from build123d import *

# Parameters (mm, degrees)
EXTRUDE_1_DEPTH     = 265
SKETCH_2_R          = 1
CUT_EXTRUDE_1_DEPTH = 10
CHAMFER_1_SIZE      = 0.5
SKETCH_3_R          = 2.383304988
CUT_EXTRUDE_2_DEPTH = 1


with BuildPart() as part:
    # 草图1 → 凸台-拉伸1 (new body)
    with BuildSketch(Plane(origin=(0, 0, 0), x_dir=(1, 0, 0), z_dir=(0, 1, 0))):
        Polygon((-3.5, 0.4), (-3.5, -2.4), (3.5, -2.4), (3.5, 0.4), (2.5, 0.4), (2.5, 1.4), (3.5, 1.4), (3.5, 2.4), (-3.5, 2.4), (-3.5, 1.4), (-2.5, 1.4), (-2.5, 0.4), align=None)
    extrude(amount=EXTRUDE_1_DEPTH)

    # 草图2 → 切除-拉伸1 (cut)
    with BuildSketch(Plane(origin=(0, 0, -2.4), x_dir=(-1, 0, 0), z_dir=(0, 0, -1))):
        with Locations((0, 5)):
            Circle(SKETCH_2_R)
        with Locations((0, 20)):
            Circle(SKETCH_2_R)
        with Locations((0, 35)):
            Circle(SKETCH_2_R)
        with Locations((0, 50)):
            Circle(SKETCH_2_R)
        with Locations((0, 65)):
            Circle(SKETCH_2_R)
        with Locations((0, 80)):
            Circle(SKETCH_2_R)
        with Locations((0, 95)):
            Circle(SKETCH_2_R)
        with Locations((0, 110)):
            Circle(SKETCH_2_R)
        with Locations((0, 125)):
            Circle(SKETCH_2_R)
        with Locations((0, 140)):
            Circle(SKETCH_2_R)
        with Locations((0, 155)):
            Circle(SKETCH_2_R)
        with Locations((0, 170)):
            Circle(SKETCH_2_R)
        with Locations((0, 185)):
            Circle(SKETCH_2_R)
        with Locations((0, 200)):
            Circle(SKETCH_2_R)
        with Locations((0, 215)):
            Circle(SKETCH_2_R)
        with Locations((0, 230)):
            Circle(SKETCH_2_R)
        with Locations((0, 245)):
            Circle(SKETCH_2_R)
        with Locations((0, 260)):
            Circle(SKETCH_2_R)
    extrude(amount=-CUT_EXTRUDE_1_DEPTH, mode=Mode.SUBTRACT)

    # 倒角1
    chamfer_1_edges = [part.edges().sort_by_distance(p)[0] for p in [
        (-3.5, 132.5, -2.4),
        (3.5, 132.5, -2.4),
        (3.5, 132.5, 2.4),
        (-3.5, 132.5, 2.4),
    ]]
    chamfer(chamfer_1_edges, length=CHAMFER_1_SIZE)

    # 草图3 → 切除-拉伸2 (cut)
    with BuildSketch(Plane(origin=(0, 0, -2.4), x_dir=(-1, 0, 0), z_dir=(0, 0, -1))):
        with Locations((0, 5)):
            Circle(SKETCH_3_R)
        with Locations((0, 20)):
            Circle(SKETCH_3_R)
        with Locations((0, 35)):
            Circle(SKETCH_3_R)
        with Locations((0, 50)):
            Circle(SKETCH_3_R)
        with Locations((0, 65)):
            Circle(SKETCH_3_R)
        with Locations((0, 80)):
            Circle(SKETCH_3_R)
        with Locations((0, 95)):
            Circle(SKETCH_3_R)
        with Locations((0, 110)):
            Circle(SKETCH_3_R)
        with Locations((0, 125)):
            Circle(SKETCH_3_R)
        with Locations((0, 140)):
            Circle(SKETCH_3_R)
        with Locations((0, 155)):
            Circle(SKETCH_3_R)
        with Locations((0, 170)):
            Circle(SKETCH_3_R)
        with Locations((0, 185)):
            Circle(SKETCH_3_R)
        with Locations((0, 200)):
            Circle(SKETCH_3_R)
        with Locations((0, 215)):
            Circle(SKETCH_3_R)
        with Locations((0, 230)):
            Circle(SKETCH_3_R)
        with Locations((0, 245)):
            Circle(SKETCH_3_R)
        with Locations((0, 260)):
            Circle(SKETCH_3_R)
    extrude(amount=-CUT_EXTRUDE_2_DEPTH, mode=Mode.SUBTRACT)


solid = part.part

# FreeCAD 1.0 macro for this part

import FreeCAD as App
import Part
import Sketcher
from FreeCAD import Vector
Q = App.Units.Quantity


def edges_at(feature, points):
    """Names of the edges that pass closest to the given points."""
    edges = feature.Shape.Edges
    near = lambda p: min(range(len(edges)), key=lambda i: edges[i].distToShape(Part.Vertex(*p))[0])
    return sorted({f"Edge{near(p) + 1}" for p in points})

doc = App.newDocument("Part")
body = doc.addObject("PartDesign::Body", "Body")

sketch1 = doc.addObject("Sketcher::SketchObject", "Sketch")
body.addObject(sketch1)
sketch1.AttachmentSupport = (doc.XZ_Plane, [""])
sketch1.MapMode = "FlatFace"
sketch1.addGeometry([
    Part.LineSegment(Vector(-3.5, -0.4, 0), Vector(-3.5, 2.4, 0)),
    Part.LineSegment(Vector(-3.5, 2.4, 0), Vector(3.5, 2.4, 0)),
    Part.LineSegment(Vector(3.5, 2.4, 0), Vector(3.5, -0.4, 0)),
    Part.LineSegment(Vector(3.5, -0.4, 0), Vector(2.5, -0.4, 0)),
    Part.LineSegment(Vector(2.5, -0.4, 0), Vector(2.5, -1.4, 0)),
    Part.LineSegment(Vector(2.5, -1.4, 0), Vector(3.5, -1.4, 0)),
    Part.LineSegment(Vector(3.5, -1.4, 0), Vector(3.5, -2.4, 0)),
    Part.LineSegment(Vector(3.5, -2.4, 0), Vector(-3.5, -2.4, 0)),
    Part.LineSegment(Vector(-3.5, -2.4, 0), Vector(-3.5, -1.4, 0)),
    Part.LineSegment(Vector(-3.5, -1.4, 0), Vector(-2.5, -1.4, 0)),
    Part.LineSegment(Vector(-2.5, -1.4, 0), Vector(-2.5, -0.4, 0)),
    Part.LineSegment(Vector(-2.5, -0.4, 0), Vector(-3.5, -0.4, 0)),
], False)
sketch1.addConstraint([
    Sketcher.Constraint("Coincident", 0, 2, 1, 1),
    Sketcher.Constraint("Coincident", 1, 2, 2, 1),
    Sketcher.Constraint("Coincident", 2, 2, 3, 1),
    Sketcher.Constraint("Coincident", 3, 2, 4, 1),
    Sketcher.Constraint("Coincident", 4, 2, 5, 1),
    Sketcher.Constraint("Coincident", 5, 2, 6, 1),
    Sketcher.Constraint("Coincident", 6, 2, 7, 1),
    Sketcher.Constraint("Coincident", 7, 2, 8, 1),
    Sketcher.Constraint("Coincident", 8, 2, 9, 1),
    Sketcher.Constraint("Coincident", 9, 2, 10, 1),
    Sketcher.Constraint("Coincident", 10, 2, 11, 1),
    Sketcher.Constraint("Coincident", 11, 2, 0, 1),
    Sketcher.Constraint("Vertical", 0),
    Sketcher.Constraint("Horizontal", 1),
    Sketcher.Constraint("Vertical", 2),
    Sketcher.Constraint("Horizontal", 3),
    Sketcher.Constraint("Vertical", 4),
    Sketcher.Constraint("Horizontal", 5),
    Sketcher.Constraint("Vertical", 6),
    Sketcher.Constraint("Horizontal", 7),
    Sketcher.Constraint("Vertical", 8),
    Sketcher.Constraint("Horizontal", 9),
    Sketcher.Constraint("Vertical", 10),
    Sketcher.Constraint("Horizontal", 11),
    Sketcher.Constraint("Symmetric", 0, 2, 6, 2, -1, 1),
    Sketcher.Constraint("Symmetric", 5, 2, 8, 2, -2),
    Sketcher.Constraint("Symmetric", 3, 2, 10, 2, -2),
    Sketcher.Constraint("Vertical", 2, 2, 5, 2),
    Sketcher.Constraint("Equal", 11, 4),
    Sketcher.Constraint("Equal", 4, 6),
    Sketcher.Constraint("DistanceX", 1, 1, 1, 2, Q("7 mm")),
    Sketcher.Constraint("DistanceX", 3, 2, 3, 1, Q("1 mm")),
    Sketcher.Constraint("DistanceY", 0, 1, 0, 2, Q("2.8 mm")),
])
pad1 = doc.addObject("PartDesign::Pad", "Pad")
body.addObject(pad1)
pad1.Profile = sketch1
pad1.Length = 265
pad1.Reversed = True

sketch2 = doc.addObject("Sketcher::SketchObject", "Sketch001")
body.addObject(sketch2)
sketch2.AttachmentSupport = (doc.XY_Plane, [""])
sketch2.MapMode = "FlatFace"
sketch2.AttachmentOffset = App.Placement(Vector(0, 0, -2.4), App.Rotation())
sketch2.addGeometry([
    Part.Circle(Vector(0, 5, 0), Vector(0, 0, 1), 1),
    Part.Circle(Vector(0, 20, 0), Vector(0, 0, 1), 1),
    Part.Circle(Vector(0, 35, 0), Vector(0, 0, 1), 1),
    Part.Circle(Vector(0, 50, 0), Vector(0, 0, 1), 1),
    Part.Circle(Vector(0, 65, 0), Vector(0, 0, 1), 1),
    Part.Circle(Vector(0, 80, 0), Vector(0, 0, 1), 1),
    Part.Circle(Vector(0, 95, 0), Vector(0, 0, 1), 1),
    Part.Circle(Vector(0, 110, 0), Vector(0, 0, 1), 1),
    Part.Circle(Vector(0, 125, 0), Vector(0, 0, 1), 1),
    Part.Circle(Vector(0, 140, 0), Vector(0, 0, 1), 1),
    Part.Circle(Vector(0, 155, 0), Vector(0, 0, 1), 1),
    Part.Circle(Vector(0, 170, 0), Vector(0, 0, 1), 1),
    Part.Circle(Vector(0, 185, 0), Vector(0, 0, 1), 1),
    Part.Circle(Vector(0, 200, 0), Vector(0, 0, 1), 1),
    Part.Circle(Vector(0, 215, 0), Vector(0, 0, 1), 1),
    Part.Circle(Vector(0, 230, 0), Vector(0, 0, 1), 1),
    Part.Circle(Vector(0, 245, 0), Vector(0, 0, 1), 1),
    Part.Circle(Vector(0, 260, 0), Vector(0, 0, 1), 1),
], False)
sketch2.addConstraint([
    Sketcher.Constraint("Equal", 0, 1),
    Sketcher.Constraint("Equal", 1, 2),
    Sketcher.Constraint("Equal", 2, 3),
    Sketcher.Constraint("Equal", 3, 4),
    Sketcher.Constraint("Equal", 4, 5),
    Sketcher.Constraint("Equal", 5, 6),
    Sketcher.Constraint("Equal", 6, 7),
    Sketcher.Constraint("Equal", 7, 8),
    Sketcher.Constraint("Equal", 8, 9),
    Sketcher.Constraint("Equal", 9, 10),
    Sketcher.Constraint("Equal", 10, 11),
    Sketcher.Constraint("Equal", 11, 12),
    Sketcher.Constraint("Equal", 12, 13),
    Sketcher.Constraint("Equal", 13, 14),
    Sketcher.Constraint("Equal", 14, 15),
    Sketcher.Constraint("Equal", 15, 16),
    Sketcher.Constraint("Equal", 16, 17),
    Sketcher.Constraint("PointOnObject", 0, 3, -2),
    Sketcher.Constraint("PointOnObject", 1, 3, -2),
    Sketcher.Constraint("PointOnObject", 2, 3, -2),
    Sketcher.Constraint("PointOnObject", 3, 3, -2),
    Sketcher.Constraint("PointOnObject", 4, 3, -2),
    Sketcher.Constraint("PointOnObject", 5, 3, -2),
    Sketcher.Constraint("PointOnObject", 6, 3, -2),
    Sketcher.Constraint("PointOnObject", 7, 3, -2),
    Sketcher.Constraint("PointOnObject", 8, 3, -2),
    Sketcher.Constraint("PointOnObject", 9, 3, -2),
    Sketcher.Constraint("PointOnObject", 10, 3, -2),
    Sketcher.Constraint("PointOnObject", 11, 3, -2),
    Sketcher.Constraint("PointOnObject", 12, 3, -2),
    Sketcher.Constraint("PointOnObject", 13, 3, -2),
    Sketcher.Constraint("PointOnObject", 14, 3, -2),
    Sketcher.Constraint("PointOnObject", 15, 3, -2),
    Sketcher.Constraint("PointOnObject", 16, 3, -2),
    Sketcher.Constraint("PointOnObject", 17, 3, -2),
    Sketcher.Constraint("Diameter", 0, Q("2 mm")),
    Sketcher.Constraint("DistanceY", -1, 1, 0, 3, Q("5 mm")),
    Sketcher.Constraint("DistanceY", -1, 1, 1, 3, Q("20 mm")),
    Sketcher.Constraint("DistanceY", -1, 1, 2, 3, Q("35 mm")),
    Sketcher.Constraint("DistanceY", -1, 1, 3, 3, Q("50 mm")),
    Sketcher.Constraint("DistanceY", -1, 1, 4, 3, Q("65 mm")),
    Sketcher.Constraint("DistanceY", -1, 1, 5, 3, Q("80 mm")),
    Sketcher.Constraint("DistanceY", -1, 1, 6, 3, Q("95 mm")),
    Sketcher.Constraint("DistanceY", -1, 1, 7, 3, Q("110 mm")),
    Sketcher.Constraint("DistanceY", -1, 1, 8, 3, Q("125 mm")),
    Sketcher.Constraint("DistanceY", -1, 1, 9, 3, Q("140 mm")),
    Sketcher.Constraint("DistanceY", -1, 1, 10, 3, Q("155 mm")),
    Sketcher.Constraint("DistanceY", -1, 1, 11, 3, Q("170 mm")),
    Sketcher.Constraint("DistanceY", -1, 1, 12, 3, Q("185 mm")),
    Sketcher.Constraint("DistanceY", -1, 1, 13, 3, Q("200 mm")),
    Sketcher.Constraint("DistanceY", -1, 1, 14, 3, Q("215 mm")),
    Sketcher.Constraint("DistanceY", -1, 1, 15, 3, Q("230 mm")),
    Sketcher.Constraint("DistanceY", -1, 1, 16, 3, Q("245 mm")),
    Sketcher.Constraint("DistanceY", -1, 1, 17, 3, Q("260 mm")),
])
pocket1 = doc.addObject("PartDesign::Pocket", "Pocket")
body.addObject(pocket1)
pocket1.Profile = sketch2
pocket1.Length = 10
pocket1.Reversed = True
doc.recompute()

chamfer = doc.addObject("PartDesign::Chamfer", "Chamfer")
body.addObject(chamfer)
chamfer.Base = (pocket1, edges_at(pocket1, [
    (-3.5, 132.5, -2.4),
    (3.5, 132.5, -2.4),
    (3.5, 132.5, 2.4),
    (-3.5, 132.5, 2.4),
]))
chamfer.Size = 0.5

sketch3 = doc.addObject("Sketcher::SketchObject", "Sketch002")
body.addObject(sketch3)
sketch3.AttachmentSupport = (doc.XY_Plane, [""])
sketch3.MapMode = "FlatFace"
sketch3.AttachmentOffset = App.Placement(Vector(0, 0, -2.4), App.Rotation())
sketch3.addGeometry([
    Part.Circle(Vector(0, 5, 0), Vector(0, 0, 1), 2.4),
    Part.Circle(Vector(0, 20, 0), Vector(0, 0, 1), 2.4),
    Part.Circle(Vector(0, 35, 0), Vector(0, 0, 1), 2.4),
    Part.Circle(Vector(0, 50, 0), Vector(0, 0, 1), 2.4),
    Part.Circle(Vector(0, 65, 0), Vector(0, 0, 1), 2.4),
    Part.Circle(Vector(0, 80, 0), Vector(0, 0, 1), 2.4),
    Part.Circle(Vector(0, 95, 0), Vector(0, 0, 1), 2.4),
    Part.Circle(Vector(0, 110, 0), Vector(0, 0, 1), 2.4),
    Part.Circle(Vector(0, 125, 0), Vector(0, 0, 1), 2.4),
    Part.Circle(Vector(0, 140, 0), Vector(0, 0, 1), 2.4),
    Part.Circle(Vector(0, 155, 0), Vector(0, 0, 1), 2.4),
    Part.Circle(Vector(0, 170, 0), Vector(0, 0, 1), 2.4),
    Part.Circle(Vector(0, 185, 0), Vector(0, 0, 1), 2.4),
    Part.Circle(Vector(0, 200, 0), Vector(0, 0, 1), 2.4),
    Part.Circle(Vector(0, 215, 0), Vector(0, 0, 1), 2.4),
    Part.Circle(Vector(0, 230, 0), Vector(0, 0, 1), 2.4),
    Part.Circle(Vector(0, 245, 0), Vector(0, 0, 1), 2.4),
    Part.Circle(Vector(0, 260, 0), Vector(0, 0, 1), 2.4),
], False)
sketch3.addConstraint([
    Sketcher.Constraint("Equal", 0, 1),
    Sketcher.Constraint("Equal", 1, 2),
    Sketcher.Constraint("Equal", 2, 3),
    Sketcher.Constraint("Equal", 3, 4),
    Sketcher.Constraint("Equal", 4, 5),
    Sketcher.Constraint("Equal", 5, 6),
    Sketcher.Constraint("Equal", 6, 7),
    Sketcher.Constraint("Equal", 7, 8),
    Sketcher.Constraint("Equal", 8, 9),
    Sketcher.Constraint("Equal", 9, 10),
    Sketcher.Constraint("Equal", 10, 11),
    Sketcher.Constraint("Equal", 11, 12),
    Sketcher.Constraint("Equal", 12, 13),
    Sketcher.Constraint("Equal", 13, 14),
    Sketcher.Constraint("Equal", 14, 15),
    Sketcher.Constraint("Equal", 15, 16),
    Sketcher.Constraint("Equal", 16, 17),
    Sketcher.Constraint("PointOnObject", 0, 3, -2),
    Sketcher.Constraint("PointOnObject", 1, 3, -2),
    Sketcher.Constraint("PointOnObject", 2, 3, -2),
    Sketcher.Constraint("PointOnObject", 3, 3, -2),
    Sketcher.Constraint("PointOnObject", 4, 3, -2),
    Sketcher.Constraint("PointOnObject", 5, 3, -2),
    Sketcher.Constraint("PointOnObject", 6, 3, -2),
    Sketcher.Constraint("PointOnObject", 7, 3, -2),
    Sketcher.Constraint("PointOnObject", 8, 3, -2),
    Sketcher.Constraint("PointOnObject", 9, 3, -2),
    Sketcher.Constraint("PointOnObject", 10, 3, -2),
    Sketcher.Constraint("PointOnObject", 11, 3, -2),
    Sketcher.Constraint("PointOnObject", 12, 3, -2),
    Sketcher.Constraint("PointOnObject", 13, 3, -2),
    Sketcher.Constraint("PointOnObject", 14, 3, -2),
    Sketcher.Constraint("PointOnObject", 15, 3, -2),
    Sketcher.Constraint("PointOnObject", 16, 3, -2),
    Sketcher.Constraint("PointOnObject", 17, 3, -2),
    Sketcher.Constraint("DistanceY", -1, 1, 0, 3, Q("5 mm")),
    Sketcher.Constraint("DistanceY", -1, 1, 1, 3, Q("20 mm")),
    Sketcher.Constraint("DistanceY", -1, 1, 2, 3, Q("35 mm")),
    Sketcher.Constraint("DistanceY", -1, 1, 3, 3, Q("50 mm")),
    Sketcher.Constraint("DistanceY", -1, 1, 4, 3, Q("65 mm")),
    Sketcher.Constraint("DistanceY", -1, 1, 5, 3, Q("80 mm")),
    Sketcher.Constraint("DistanceY", -1, 1, 6, 3, Q("95 mm")),
    Sketcher.Constraint("DistanceY", -1, 1, 7, 3, Q("110 mm")),
    Sketcher.Constraint("DistanceY", -1, 1, 8, 3, Q("125 mm")),
    Sketcher.Constraint("DistanceY", -1, 1, 9, 3, Q("140 mm")),
    Sketcher.Constraint("DistanceY", -1, 1, 10, 3, Q("155 mm")),
    Sketcher.Constraint("DistanceY", -1, 1, 11, 3, Q("170 mm")),
    Sketcher.Constraint("DistanceY", -1, 1, 12, 3, Q("185 mm")),
    Sketcher.Constraint("DistanceY", -1, 1, 13, 3, Q("200 mm")),
    Sketcher.Constraint("DistanceY", -1, 1, 14, 3, Q("215 mm")),
    Sketcher.Constraint("DistanceY", -1, 1, 15, 3, Q("230 mm")),
    Sketcher.Constraint("DistanceY", -1, 1, 16, 3, Q("245 mm")),
    Sketcher.Constraint("DistanceY", -1, 1, 17, 3, Q("260 mm")),
    Sketcher.Constraint("Diameter", 0, Q("4.76661 mm")),
])
pocket2 = doc.addObject("PartDesign::Pocket", "Pocket001")
body.addObject(pocket2)
pocket2.Profile = sketch3
pocket2.Length = 1
pocket2.Reversed = True

doc.recompute()
